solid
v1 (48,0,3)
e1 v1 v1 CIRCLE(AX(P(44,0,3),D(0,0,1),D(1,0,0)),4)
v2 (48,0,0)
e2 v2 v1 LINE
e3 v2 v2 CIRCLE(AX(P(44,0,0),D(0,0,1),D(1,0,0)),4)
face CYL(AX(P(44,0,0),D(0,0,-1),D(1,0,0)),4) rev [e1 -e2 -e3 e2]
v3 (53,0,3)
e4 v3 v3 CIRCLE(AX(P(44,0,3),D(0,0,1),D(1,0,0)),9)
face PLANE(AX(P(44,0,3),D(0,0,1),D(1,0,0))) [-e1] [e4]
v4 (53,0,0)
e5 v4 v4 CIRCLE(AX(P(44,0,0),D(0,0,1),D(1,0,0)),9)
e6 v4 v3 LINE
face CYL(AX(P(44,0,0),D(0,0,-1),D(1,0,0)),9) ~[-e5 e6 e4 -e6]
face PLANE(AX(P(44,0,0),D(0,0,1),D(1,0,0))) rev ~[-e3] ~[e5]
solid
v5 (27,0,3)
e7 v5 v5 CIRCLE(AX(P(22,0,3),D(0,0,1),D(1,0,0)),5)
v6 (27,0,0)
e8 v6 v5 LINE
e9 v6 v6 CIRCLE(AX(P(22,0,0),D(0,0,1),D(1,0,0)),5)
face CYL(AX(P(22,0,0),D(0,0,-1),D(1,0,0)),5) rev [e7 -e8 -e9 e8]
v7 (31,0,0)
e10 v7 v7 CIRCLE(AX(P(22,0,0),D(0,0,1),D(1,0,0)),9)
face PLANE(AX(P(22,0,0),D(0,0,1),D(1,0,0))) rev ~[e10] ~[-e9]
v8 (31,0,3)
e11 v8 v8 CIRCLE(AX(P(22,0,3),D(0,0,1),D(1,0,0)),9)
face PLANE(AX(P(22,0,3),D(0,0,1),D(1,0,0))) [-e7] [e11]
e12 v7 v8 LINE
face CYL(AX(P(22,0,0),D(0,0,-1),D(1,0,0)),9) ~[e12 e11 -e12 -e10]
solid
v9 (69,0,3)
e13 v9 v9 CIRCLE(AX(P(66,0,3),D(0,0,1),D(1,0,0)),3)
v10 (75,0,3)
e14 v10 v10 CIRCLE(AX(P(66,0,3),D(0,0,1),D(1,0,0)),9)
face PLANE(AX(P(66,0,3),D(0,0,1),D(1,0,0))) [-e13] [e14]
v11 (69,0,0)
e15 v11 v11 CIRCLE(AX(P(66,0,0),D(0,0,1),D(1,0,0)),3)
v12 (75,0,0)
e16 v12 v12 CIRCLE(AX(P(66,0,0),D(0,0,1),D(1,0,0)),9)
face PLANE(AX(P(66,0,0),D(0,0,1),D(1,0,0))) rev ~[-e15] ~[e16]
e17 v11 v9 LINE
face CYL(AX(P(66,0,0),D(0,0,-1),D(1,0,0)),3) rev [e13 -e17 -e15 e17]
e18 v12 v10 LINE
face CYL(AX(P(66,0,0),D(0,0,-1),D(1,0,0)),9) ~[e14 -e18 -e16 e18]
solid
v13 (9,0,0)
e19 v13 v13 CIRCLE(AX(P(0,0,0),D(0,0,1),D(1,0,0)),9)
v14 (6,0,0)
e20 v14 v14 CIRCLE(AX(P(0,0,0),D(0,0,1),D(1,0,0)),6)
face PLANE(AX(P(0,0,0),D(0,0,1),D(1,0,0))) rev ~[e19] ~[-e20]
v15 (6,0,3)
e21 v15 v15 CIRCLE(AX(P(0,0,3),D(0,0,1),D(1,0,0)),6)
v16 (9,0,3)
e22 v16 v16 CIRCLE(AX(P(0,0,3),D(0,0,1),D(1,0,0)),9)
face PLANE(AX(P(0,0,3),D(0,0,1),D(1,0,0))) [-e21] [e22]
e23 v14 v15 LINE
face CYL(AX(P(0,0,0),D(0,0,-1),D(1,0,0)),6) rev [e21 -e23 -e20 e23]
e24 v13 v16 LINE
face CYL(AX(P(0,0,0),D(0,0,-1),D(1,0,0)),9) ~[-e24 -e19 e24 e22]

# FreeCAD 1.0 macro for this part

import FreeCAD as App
import Part
import Sketcher

V = App.Vector

doc = App.newDocument("Part")
body = doc.addObject("PartDesign::Body", "Body")
body.AllowCompound = True

# Sketch on XY plane
sketch1 = doc.addObject("Sketcher::SketchObject", "Sketch")
body.addObject(sketch1)
sketch1.AttachmentSupport = (doc.XY_Plane, [""])
sketch1.MapMode = "FlatFace"
sketch1.addGeometry([
    Part.Circle(V(0, 0, 0), V(0, 0, 1), 9),  # 0
    Part.Circle(V(0, 0, 0), V(0, 0, 1), 6),  # 1
    Part.Circle(V(22, 0, 0), V(0, 0, 1), 9),  # 2
    Part.Circle(V(22, 0, 0), V(0, 0, 1), 5),  # 3
    Part.Circle(V(44, 0, 0), V(0, 0, 1), 9),  # 4
    Part.Circle(V(44, 0, 0), V(0, 0, 1), 4),  # 5
    Part.Circle(V(66, 0, 0), V(0, 0, 1), 9),  # 6
    Part.Circle(V(66, 0, 0), V(0, 0, 1), 3),  # 7
], False)
sketch1.addConstraint([
    Sketcher.Constraint("Coincident", 0, 3, -1, 1),
    Sketcher.Constraint("Coincident", 1, 3, -1, 1),
    Sketcher.Constraint("Coincident", 3, 3, 2, 3),
    Sketcher.Constraint("Coincident", 5, 3, 4, 3),
    Sketcher.Constraint("Coincident", 7, 3, 6, 3),
    Sketcher.Constraint("Equal", 0, 2),
    Sketcher.Constraint("Equal", 2, 4),
    Sketcher.Constraint("Equal", 4, 6),
    Sketcher.Constraint("PointOnObject", 2, 3, -1),
    Sketcher.Constraint("PointOnObject", 4, 3, -1),
    Sketcher.Constraint("PointOnObject", 6, 3, -1),
    Sketcher.Constraint("Diameter", 0, 18.0),
    Sketcher.Constraint("Diameter", 1, 12.0),
    Sketcher.Constraint("Diameter", 3, 10.0),
    Sketcher.Constraint("Diameter", 5, 8.0),
    Sketcher.Constraint("Diameter", 7, 6.0),
    Sketcher.Constraint("DistanceX", -1, 1, 2, 3, 22.0),
    Sketcher.Constraint("DistanceX", -1, 1, 4, 3, 44.0),
    Sketcher.Constraint("DistanceX", -1, 1, 6, 3, 66.0),
])
pad1 = doc.addObject("PartDesign::Pad", "Pad")
body.addObject(pad1)
pad1.Profile = sketch1
pad1.Length = 3

doc.recompute()
